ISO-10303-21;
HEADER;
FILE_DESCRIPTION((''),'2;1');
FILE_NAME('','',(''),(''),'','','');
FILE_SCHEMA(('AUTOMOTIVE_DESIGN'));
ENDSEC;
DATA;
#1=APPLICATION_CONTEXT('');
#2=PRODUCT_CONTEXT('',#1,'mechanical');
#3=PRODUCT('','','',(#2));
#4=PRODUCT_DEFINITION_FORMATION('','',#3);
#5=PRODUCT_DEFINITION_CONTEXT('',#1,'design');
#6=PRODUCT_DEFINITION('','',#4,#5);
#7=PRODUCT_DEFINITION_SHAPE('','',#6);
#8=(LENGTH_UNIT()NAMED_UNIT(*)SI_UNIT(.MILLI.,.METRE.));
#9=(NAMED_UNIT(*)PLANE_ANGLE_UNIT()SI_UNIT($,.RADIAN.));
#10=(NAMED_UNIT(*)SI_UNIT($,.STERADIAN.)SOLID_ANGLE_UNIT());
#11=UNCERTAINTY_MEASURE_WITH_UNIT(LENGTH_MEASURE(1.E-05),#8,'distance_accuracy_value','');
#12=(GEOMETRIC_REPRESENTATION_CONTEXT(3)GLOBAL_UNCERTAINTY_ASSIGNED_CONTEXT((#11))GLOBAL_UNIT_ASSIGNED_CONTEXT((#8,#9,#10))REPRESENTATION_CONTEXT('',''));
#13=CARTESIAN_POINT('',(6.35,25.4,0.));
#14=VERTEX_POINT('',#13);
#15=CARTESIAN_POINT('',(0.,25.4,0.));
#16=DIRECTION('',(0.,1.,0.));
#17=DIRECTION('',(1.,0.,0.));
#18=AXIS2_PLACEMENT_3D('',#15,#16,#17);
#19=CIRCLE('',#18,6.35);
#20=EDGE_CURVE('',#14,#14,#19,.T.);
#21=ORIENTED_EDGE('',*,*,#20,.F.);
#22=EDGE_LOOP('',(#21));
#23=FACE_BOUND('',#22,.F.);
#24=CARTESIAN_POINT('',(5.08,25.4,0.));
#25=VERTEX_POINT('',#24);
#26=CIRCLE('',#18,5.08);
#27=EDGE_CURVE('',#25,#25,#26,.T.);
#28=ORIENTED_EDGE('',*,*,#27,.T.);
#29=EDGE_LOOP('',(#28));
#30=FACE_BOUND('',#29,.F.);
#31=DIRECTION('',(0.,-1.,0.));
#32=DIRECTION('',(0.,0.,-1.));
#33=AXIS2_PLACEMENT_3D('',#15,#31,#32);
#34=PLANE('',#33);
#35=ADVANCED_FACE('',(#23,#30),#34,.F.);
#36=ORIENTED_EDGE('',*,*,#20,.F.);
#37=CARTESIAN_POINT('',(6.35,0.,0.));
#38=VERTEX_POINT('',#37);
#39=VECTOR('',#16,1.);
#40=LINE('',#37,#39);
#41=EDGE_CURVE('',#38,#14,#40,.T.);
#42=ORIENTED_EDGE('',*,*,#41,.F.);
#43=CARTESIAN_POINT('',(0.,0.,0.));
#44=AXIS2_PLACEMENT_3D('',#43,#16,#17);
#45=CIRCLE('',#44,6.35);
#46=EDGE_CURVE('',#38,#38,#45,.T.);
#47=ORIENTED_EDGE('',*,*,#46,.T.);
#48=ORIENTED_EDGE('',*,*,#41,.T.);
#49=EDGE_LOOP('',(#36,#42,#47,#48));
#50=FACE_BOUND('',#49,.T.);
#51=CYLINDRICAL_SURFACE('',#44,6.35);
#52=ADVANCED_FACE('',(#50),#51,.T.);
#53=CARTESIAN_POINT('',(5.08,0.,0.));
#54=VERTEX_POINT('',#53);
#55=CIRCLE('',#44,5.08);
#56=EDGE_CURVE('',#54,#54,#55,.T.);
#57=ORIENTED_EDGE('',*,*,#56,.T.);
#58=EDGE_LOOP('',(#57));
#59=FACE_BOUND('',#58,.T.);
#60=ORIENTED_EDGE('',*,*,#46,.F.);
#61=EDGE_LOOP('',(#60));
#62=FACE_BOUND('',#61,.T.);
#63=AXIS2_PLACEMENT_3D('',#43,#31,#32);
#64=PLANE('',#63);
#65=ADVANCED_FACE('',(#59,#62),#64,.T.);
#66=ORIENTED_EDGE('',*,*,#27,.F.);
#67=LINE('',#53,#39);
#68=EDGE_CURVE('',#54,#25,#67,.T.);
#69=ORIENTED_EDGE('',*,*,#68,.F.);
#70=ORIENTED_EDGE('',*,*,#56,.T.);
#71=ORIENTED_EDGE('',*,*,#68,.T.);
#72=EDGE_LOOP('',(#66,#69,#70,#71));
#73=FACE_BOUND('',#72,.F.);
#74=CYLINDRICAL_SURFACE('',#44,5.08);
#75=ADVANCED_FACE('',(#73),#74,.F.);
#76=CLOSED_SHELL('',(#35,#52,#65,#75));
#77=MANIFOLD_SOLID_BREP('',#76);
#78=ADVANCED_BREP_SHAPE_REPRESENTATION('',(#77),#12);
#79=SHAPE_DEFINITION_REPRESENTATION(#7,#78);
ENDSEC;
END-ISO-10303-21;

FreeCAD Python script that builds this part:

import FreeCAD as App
import Part
import Sketcher
Q = App.Units.Quantity

doc = App.newDocument("Part")
params = doc.addObject("Spreadsheet::Sheet", "Params")
for row, (alias, value) in enumerate([
    ("sketch1_diameter", "0.5 in"),
    ("sketch1_diameter2", "0.4 in"),
    ("sketch2_height", "1 in"),
], start=1):
    params.set(f"A{row}", alias)
    params.set(f"B{row}", "=" + value)
    params.setAlias(f"B{row}", alias)

body = doc.addObject("PartDesign::Body", "Body")

# Sketch on XZ plane
sketch1 = body.newObject("Sketcher::SketchObject", "Sketch")
sketch1.AttachmentSupport = (doc.getObject("XZ_Plane"), [""])
sketch1.MapMode = "FlatFace"
sketch1.addGeometry(Part.Circle(App.Vector(0, 0, 0), App.Vector(0, 0, 1), 6), False)
sketch1.addGeometry(Part.Circle(App.Vector(0, 0, 0), App.Vector(0, 0, 1), 5), False)
sketch1.addConstraint(Sketcher.Constraint("Coincident", 0, 3, -1, 1))
sketch1.addConstraint(Sketcher.Constraint("Coincident", 1, 3, -1, 1))
sketch1.addConstraint(Sketcher.Constraint("Diameter", 0, Q("0.5 in")))
sketch1.addConstraint(Sketcher.Constraint("Diameter", 1, Q("0.4 in")))
sketch1.setExpression("Constraints[2]", "Params.sketch1_diameter")
sketch1.setExpression("Constraints[3]", "Params.sketch1_diameter2")

# Sketch on XY plane
sketch2 = body.newObject("Sketcher::SketchObject", "Sketch001")
sketch2.AttachmentSupport = (doc.getObject("XY_Plane"), [""])
sketch2.MapMode = "FlatFace"
sketch2.addGeometry(Part.LineSegment(App.Vector(0, 0, 0), App.Vector(0, 25, 0)), False)
sketch2.addConstraint(Sketcher.Constraint("Vertical", 0))
sketch2.addConstraint(Sketcher.Constraint("Coincident", 0, 1, -1, 1))
sketch2.addConstraint(Sketcher.Constraint("DistanceY", 0, 1, 0, 2, Q("1 in")))
sketch2.setExpression("Constraints[2]", "Params.sketch2_height")
doc.recompute()

additivepipe = body.newObject("PartDesign::AdditivePipe", "AdditivePipe")
additivepipe.Profile = sketch1
additivepipe.Spine = (sketch2, ["Edge1"])

doc.recompute()
